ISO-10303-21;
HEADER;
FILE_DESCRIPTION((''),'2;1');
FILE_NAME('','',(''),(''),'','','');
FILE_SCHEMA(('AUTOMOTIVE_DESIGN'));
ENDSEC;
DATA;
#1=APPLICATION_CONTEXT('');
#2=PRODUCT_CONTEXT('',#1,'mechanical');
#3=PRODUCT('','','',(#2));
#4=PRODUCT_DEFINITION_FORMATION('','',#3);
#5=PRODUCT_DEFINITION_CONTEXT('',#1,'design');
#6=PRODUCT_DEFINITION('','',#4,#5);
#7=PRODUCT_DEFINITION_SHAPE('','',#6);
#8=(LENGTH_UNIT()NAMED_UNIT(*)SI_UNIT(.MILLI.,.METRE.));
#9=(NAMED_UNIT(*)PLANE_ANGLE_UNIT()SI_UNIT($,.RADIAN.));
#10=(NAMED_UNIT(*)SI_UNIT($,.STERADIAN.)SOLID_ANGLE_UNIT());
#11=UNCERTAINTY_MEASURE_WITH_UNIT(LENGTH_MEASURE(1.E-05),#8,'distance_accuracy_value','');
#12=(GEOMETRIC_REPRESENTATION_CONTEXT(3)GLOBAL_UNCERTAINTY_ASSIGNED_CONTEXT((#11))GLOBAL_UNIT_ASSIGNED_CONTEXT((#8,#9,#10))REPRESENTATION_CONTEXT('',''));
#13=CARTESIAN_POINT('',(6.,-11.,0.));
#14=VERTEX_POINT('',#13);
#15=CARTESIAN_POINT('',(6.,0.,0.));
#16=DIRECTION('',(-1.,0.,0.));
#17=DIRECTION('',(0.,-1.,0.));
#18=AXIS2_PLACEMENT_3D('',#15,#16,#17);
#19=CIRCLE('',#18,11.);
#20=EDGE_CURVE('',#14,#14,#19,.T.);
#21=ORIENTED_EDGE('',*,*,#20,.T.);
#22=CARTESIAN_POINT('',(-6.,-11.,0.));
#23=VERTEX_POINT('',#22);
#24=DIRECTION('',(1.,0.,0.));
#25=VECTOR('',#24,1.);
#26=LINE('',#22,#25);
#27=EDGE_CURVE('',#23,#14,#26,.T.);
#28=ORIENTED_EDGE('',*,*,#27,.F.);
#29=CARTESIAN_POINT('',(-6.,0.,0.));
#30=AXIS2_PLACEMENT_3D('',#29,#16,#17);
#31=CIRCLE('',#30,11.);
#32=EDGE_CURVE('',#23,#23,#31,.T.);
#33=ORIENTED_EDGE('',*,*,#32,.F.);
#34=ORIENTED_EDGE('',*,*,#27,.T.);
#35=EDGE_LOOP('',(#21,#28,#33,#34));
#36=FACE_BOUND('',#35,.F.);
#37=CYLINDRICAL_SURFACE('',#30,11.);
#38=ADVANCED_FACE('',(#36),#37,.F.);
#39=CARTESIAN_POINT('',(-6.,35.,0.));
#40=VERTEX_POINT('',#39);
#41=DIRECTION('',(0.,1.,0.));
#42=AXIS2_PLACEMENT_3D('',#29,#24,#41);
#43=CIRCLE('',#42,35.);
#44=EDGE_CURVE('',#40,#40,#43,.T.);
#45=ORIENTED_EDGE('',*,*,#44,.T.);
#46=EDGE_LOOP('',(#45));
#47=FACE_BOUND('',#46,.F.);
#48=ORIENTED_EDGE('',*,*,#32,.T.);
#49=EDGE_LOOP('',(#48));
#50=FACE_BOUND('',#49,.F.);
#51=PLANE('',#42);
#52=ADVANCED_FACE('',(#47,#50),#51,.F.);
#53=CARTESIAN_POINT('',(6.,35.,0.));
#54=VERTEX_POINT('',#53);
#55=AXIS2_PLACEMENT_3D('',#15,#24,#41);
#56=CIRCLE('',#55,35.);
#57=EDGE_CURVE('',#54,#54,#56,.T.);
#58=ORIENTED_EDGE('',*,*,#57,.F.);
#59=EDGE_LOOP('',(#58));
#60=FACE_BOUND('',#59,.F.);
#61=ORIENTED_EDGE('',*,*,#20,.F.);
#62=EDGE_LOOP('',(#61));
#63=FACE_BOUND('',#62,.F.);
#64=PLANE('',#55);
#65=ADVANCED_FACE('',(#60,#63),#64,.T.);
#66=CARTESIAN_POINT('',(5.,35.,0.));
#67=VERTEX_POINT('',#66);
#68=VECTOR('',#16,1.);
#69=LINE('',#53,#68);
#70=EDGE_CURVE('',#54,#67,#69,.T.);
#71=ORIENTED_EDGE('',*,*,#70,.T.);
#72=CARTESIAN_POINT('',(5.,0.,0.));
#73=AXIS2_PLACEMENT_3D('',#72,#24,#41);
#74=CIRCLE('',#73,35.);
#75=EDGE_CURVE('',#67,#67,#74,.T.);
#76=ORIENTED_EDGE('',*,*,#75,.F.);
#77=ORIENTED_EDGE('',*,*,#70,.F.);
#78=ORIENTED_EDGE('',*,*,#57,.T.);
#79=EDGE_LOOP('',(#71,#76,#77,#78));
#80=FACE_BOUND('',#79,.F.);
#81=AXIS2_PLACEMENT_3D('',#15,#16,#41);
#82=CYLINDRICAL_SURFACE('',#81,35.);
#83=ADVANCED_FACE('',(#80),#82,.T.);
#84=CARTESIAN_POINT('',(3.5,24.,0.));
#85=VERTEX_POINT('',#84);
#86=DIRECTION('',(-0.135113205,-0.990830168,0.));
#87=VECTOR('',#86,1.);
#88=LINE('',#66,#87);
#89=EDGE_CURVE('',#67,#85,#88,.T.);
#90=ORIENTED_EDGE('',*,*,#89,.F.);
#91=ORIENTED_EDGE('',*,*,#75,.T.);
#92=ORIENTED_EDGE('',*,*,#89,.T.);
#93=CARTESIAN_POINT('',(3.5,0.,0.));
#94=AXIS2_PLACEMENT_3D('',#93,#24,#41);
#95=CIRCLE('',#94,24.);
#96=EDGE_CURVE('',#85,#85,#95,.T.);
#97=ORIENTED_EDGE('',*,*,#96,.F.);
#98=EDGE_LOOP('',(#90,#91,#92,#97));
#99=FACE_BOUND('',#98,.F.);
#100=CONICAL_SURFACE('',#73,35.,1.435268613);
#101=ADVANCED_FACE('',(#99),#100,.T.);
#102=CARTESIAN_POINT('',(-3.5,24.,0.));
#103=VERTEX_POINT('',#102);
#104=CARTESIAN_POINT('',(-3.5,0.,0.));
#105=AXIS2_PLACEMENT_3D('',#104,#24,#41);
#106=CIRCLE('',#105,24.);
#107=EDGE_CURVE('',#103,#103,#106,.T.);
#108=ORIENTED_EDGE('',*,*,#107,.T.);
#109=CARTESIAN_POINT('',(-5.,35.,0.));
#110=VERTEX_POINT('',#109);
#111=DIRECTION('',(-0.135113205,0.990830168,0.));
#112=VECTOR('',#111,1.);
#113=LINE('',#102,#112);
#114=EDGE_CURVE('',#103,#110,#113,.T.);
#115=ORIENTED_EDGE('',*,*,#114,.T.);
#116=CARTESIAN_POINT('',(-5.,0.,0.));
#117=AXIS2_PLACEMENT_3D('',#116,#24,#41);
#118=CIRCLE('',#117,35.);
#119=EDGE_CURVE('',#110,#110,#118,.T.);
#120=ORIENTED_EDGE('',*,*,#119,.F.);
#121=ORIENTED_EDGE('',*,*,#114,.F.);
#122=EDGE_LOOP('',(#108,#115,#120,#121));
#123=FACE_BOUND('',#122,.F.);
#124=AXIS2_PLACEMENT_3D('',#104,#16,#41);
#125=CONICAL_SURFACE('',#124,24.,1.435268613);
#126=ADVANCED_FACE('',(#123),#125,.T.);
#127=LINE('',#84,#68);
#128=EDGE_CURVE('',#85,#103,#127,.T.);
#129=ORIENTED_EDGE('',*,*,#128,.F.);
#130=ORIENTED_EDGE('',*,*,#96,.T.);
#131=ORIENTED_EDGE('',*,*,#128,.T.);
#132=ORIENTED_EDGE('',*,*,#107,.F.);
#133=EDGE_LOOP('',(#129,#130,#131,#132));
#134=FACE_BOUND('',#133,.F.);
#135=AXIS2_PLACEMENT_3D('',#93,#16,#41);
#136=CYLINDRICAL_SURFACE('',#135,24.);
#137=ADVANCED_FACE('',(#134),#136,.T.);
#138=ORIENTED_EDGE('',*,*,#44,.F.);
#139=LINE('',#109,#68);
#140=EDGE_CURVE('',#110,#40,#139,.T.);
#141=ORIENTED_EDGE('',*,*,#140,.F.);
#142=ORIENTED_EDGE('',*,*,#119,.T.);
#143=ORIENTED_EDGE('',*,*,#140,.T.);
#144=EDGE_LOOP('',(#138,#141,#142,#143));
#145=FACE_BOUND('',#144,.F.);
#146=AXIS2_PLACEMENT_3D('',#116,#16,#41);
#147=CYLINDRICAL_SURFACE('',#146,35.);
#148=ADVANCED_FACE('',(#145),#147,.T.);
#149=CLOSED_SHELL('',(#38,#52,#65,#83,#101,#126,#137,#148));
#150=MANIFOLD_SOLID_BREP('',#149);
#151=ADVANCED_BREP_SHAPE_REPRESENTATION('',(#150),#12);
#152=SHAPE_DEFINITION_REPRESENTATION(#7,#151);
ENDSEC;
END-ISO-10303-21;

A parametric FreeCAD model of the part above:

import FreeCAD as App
import Part
import Sketcher
from FreeCAD import Vector
Q = App.Units.Quantity

doc = App.newDocument("Part")
body = doc.addObject("PartDesign::Body", "Body")

sketch1 = body.newObject("Sketcher::SketchObject", "Sketch")
sketch1.AttachmentSupport = (doc.getObject("XY_Plane"), [""])
sketch1.MapMode = "FlatFace"
sketch1.addGeometry([
    Part.LineSegment(Vector(-6, 0, 0), Vector(6, 0, 0)),
    Part.LineSegment(Vector(6, 0, 0), Vector(6, 35, 0)),
    Part.LineSegment(Vector(6, 35, 0), Vector(5, 35, 0)),
    Part.LineSegment(Vector(5, 35, 0), Vector(3.5, 24, 0)),
    Part.LineSegment(Vector(3.5, 24, 0), Vector(-3.5, 24, 0)),
    Part.LineSegment(Vector(-3.5, 24, 0), Vector(-5, 35, 0)),
    Part.LineSegment(Vector(-5, 35, 0), Vector(-6, 35, 0)),
    Part.LineSegment(Vector(-6, 35, 0), Vector(-6, 0, 0)),
], False)
sketch1.addConstraint([
    Sketcher.Constraint("Coincident", 0, 2, 1, 1),
    Sketcher.Constraint("Coincident", 1, 2, 2, 1),
    Sketcher.Constraint("Coincident", 2, 2, 3, 1),
    Sketcher.Constraint("Coincident", 3, 2, 4, 1),
    Sketcher.Constraint("Coincident", 4, 2, 5, 1),
    Sketcher.Constraint("Coincident", 5, 2, 6, 1),
    Sketcher.Constraint("Coincident", 6, 2, 7, 1),
    Sketcher.Constraint("Coincident", 7, 2, 0, 1),
    Sketcher.Constraint("Horizontal", 0),
    Sketcher.Constraint("Vertical", 1),
    Sketcher.Constraint("Horizontal", 2),
    Sketcher.Constraint("Horizontal", 4),
    Sketcher.Constraint("Horizontal", 6),
    Sketcher.Constraint("Vertical", 7),
    Sketcher.Constraint("Symmetric", 0, 2, 7, 2, -1, 1),
    Sketcher.Constraint("Symmetric", 2, 2, 5, 2, -2),
    Sketcher.Constraint("Equal", 3, 5),
    Sketcher.Constraint("DistanceX", 0, 1, 0, 2, Q("12 mm")),
    Sketcher.Constraint("DistanceX", 2, 2, 2, 1, Q("1 mm")),
    Sketcher.Constraint("DistanceX", 4, 2, 4, 1, Q("7 mm")),
    Sketcher.Constraint("DistanceY", 1, 1, 1, 2, Q("35 mm")),
    Sketcher.Constraint("DistanceY", -1, 1, 3, 2, Q("24 mm")),
])
revolution = body.newObject("PartDesign::Revolution", "Revolution")
revolution.Profile = sketch1
revolution.ReferenceAxis = (sketch1, ["H_Axis"])
revolution.Angle = 360

sketch2 = body.newObject("Sketcher::SketchObject", "Sketch001")
sketch2.AttachmentSupport = (doc.getObject("YZ_Plane"), [""])
sketch2.MapMode = "FlatFace"
sketch2.AttachmentOffset = App.Placement(Vector(0, 0, -6), App.Rotation())
sketch2.addGeometry(Part.Circle(Vector(0, 0, 0), Vector(0, 0, 1), 11), False)
sketch2.addConstraint([
    Sketcher.Constraint("Coincident", 0, 3, -1, 1),
    Sketcher.Constraint("Diameter", 0, Q("22 mm")),
])
pocket1 = body.newObject("PartDesign::Pocket", "Pocket")
pocket1.Profile = sketch2
pocket1.Type = "ThroughAll"
pocket1.Reversed = True

doc.recompute()
